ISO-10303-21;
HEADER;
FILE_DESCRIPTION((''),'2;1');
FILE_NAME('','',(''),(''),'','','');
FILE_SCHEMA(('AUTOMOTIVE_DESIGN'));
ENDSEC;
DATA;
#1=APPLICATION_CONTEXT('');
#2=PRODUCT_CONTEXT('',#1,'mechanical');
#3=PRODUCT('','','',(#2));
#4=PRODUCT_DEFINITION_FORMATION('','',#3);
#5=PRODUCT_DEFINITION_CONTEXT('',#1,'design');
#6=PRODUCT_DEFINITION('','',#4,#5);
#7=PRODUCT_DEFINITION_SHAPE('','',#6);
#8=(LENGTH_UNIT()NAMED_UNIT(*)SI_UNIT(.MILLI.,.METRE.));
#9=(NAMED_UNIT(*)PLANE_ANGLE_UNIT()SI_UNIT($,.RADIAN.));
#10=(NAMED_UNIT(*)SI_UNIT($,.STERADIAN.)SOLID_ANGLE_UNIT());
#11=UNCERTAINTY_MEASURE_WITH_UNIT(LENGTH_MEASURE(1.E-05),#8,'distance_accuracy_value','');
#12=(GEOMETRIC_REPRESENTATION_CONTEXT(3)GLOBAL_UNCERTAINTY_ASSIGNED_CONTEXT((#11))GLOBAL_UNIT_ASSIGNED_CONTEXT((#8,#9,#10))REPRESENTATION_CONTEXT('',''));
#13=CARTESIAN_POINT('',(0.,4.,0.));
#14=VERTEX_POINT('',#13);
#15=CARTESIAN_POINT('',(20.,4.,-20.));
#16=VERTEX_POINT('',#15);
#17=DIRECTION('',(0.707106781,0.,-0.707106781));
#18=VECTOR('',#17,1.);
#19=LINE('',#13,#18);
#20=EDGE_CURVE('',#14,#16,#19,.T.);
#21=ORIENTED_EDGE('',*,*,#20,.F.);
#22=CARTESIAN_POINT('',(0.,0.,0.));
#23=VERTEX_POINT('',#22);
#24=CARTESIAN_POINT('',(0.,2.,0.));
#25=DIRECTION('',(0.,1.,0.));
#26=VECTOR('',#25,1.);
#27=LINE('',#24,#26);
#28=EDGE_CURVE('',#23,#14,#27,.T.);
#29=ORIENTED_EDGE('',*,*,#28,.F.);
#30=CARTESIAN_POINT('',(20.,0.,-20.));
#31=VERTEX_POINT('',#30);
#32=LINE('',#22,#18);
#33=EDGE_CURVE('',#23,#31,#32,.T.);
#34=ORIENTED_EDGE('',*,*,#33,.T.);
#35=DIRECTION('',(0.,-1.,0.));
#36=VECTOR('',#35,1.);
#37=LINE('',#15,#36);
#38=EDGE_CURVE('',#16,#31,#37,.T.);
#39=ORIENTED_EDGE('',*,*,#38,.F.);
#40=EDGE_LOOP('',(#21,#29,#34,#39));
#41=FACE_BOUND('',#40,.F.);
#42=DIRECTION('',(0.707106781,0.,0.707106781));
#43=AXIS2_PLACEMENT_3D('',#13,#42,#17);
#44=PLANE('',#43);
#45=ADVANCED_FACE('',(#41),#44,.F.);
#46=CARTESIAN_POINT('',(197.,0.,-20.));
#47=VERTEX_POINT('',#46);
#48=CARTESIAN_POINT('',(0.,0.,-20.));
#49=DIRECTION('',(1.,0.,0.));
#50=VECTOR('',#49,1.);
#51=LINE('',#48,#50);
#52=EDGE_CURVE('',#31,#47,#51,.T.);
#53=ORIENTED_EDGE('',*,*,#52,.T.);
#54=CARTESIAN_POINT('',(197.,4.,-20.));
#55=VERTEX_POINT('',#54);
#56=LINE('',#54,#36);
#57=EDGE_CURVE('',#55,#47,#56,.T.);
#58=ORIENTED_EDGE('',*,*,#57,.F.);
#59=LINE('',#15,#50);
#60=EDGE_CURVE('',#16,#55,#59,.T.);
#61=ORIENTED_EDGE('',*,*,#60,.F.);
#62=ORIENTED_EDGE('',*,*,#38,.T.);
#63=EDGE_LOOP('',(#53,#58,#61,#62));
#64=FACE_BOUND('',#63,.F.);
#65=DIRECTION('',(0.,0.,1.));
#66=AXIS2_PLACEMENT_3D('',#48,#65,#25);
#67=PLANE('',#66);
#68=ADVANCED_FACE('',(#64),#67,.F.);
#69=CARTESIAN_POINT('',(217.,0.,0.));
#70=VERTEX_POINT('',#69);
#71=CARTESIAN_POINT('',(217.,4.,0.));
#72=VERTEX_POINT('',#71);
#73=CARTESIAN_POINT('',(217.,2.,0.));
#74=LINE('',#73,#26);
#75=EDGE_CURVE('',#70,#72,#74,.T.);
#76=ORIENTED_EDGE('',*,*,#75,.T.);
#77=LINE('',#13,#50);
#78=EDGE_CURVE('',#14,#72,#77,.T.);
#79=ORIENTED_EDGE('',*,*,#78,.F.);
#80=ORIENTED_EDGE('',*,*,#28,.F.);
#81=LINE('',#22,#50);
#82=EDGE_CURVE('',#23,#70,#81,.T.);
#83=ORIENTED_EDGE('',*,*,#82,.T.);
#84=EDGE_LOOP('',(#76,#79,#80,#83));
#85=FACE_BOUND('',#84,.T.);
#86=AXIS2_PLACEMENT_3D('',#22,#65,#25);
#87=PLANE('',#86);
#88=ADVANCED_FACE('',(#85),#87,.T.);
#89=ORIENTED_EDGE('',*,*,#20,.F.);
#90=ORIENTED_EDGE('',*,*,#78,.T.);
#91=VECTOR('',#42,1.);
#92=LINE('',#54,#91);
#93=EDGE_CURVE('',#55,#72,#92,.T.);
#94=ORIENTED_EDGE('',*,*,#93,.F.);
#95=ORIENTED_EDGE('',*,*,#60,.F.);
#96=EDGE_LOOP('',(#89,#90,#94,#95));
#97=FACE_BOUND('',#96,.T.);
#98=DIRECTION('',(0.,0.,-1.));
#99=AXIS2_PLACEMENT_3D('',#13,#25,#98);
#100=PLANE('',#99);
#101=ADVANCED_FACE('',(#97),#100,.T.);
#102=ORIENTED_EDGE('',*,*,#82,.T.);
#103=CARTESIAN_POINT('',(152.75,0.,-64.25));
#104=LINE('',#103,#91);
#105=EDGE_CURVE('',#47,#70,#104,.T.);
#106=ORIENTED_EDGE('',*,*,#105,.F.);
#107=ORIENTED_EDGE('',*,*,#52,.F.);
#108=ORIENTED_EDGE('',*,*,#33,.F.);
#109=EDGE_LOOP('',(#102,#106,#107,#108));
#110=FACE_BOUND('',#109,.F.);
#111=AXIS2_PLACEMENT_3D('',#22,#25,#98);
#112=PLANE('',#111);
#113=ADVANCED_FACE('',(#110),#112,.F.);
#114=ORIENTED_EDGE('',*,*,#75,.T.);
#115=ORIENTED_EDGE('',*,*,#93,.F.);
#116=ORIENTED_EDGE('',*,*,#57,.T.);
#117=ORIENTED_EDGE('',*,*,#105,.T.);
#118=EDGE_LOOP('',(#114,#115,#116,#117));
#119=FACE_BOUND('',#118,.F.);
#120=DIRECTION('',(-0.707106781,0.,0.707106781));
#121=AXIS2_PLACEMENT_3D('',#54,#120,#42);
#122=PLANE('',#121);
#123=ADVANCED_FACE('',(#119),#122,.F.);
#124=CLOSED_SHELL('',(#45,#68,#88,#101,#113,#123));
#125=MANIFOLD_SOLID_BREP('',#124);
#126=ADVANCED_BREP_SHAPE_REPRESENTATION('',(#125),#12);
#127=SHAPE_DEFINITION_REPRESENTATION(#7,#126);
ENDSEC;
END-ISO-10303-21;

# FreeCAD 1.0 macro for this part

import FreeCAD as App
import Part
import Sketcher
from FreeCAD import Vector
Q = App.Units.Quantity

doc = App.newDocument("Part")
body = doc.addObject("PartDesign::Body", "Body")

# Sketch on YZ plane
sketch1 = body.newObject("Sketcher::SketchObject", "Sketch")
sketch1.AttachmentSupport = (doc.getObject("YZ_Plane"), [""])
sketch1.MapMode = "FlatFace"
sketch1.addGeometry([
    Part.LineSegment(Vector(4, 0, 0), Vector(0, 0, 0)),
    Part.LineSegment(Vector(0, 0, 0), Vector(0, -20, 0)),
    Part.LineSegment(Vector(0, -20, 0), Vector(4, -20, 0)),
    Part.LineSegment(Vector(4, -20, 0), Vector(4, 0, 0)),
], False)
sketch1.addConstraint([
    Sketcher.Constraint("Coincident", 0, 2, 1, 1),
    Sketcher.Constraint("Coincident", 1, 2, 2, 1),
    Sketcher.Constraint("Coincident", 2, 2, 3, 1),
    Sketcher.Constraint("Coincident", 3, 2, 0, 1),
    Sketcher.Constraint("Horizontal", 0),
    Sketcher.Constraint("Vertical", 1),
    Sketcher.Constraint("Horizontal", 2),
    Sketcher.Constraint("Vertical", 3),
    Sketcher.Constraint("Coincident", 0, 2, -1, 1),
    Sketcher.Constraint("DistanceX", 0, 2, 0, 1, Q("4 mm")),
    Sketcher.Constraint("DistanceY", 1, 2, 1, 1, Q("20 mm")),
])
pad1 = body.newObject("PartDesign::Pad", "Pad")
pad1.Profile = sketch1
pad1.Length = 217

# Sketch on XZ plane
sketch2 = body.newObject("Sketcher::SketchObject", "Sketch001")
sketch2.AttachmentSupport = (doc.getObject("XZ_Plane"), [""])
sketch2.MapMode = "FlatFace"
sketch2.AttachmentOffset = App.Placement(Vector(0, 0, -4), App.Rotation())
sketch2.addGeometry([
    Part.LineSegment(Vector(-22.796, -42.796, 0), Vector(-22.796, 22.796, 0)),  # 0
    Part.LineSegment(Vector(-22.796, 22.796, 0), Vector(239.796, 22.796, 0)),  # 1
    Part.LineSegment(Vector(239.796, 22.796, 0), Vector(239.796, -42.796, 0)),  # 2
    Part.LineSegment(Vector(239.796, -42.796, 0), Vector(-22.796, -42.796, 0)),  # 3
    Part.LineSegment(Vector(217, 0, 0), Vector(0, 0, 0)),  # 4
    Part.LineSegment(Vector(0, 0, 0), Vector(20, -20, 0)),  # 5
    Part.LineSegment(Vector(20, -20, 0), Vector(197, -20, 0)),  # 6
    Part.LineSegment(Vector(197, -20, 0), Vector(217, 0, 0)),  # 7
], False)
sketch2.addConstraint([
    Sketcher.Constraint("Coincident", 0, 2, 1, 1),
    Sketcher.Constraint("Coincident", 1, 2, 2, 1),
    Sketcher.Constraint("Coincident", 2, 2, 3, 1),
    Sketcher.Constraint("Coincident", 3, 2, 0, 1),
    Sketcher.Constraint("Coincident", 4, 2, 5, 1),
    Sketcher.Constraint("Coincident", 5, 2, 6, 1),
    Sketcher.Constraint("Coincident", 6, 2, 7, 1),
    Sketcher.Constraint("Coincident", 7, 2, 4, 1),
    Sketcher.Constraint("Vertical", 0),
    Sketcher.Constraint("Horizontal", 1),
    Sketcher.Constraint("Vertical", 2),
    Sketcher.Constraint("Horizontal", 3),
    Sketcher.Constraint("Horizontal", 4),
    Sketcher.Constraint("Horizontal", 6),
    Sketcher.Constraint("Coincident", 4, 2, -1, 1),
    Sketcher.Constraint("Perpendicular", 5, 7),
    Sketcher.Constraint("Equal", 5, 7),
    Sketcher.Constraint("DistanceX", 4, 2, 4, 1, Q("217 mm")),
    Sketcher.Constraint("DistanceX", 6, 1, 6, 2, Q("177 mm")),
    Sketcher.Constraint("DistanceX", 1, 1, 1, 2, Q("262.592 mm")),
    Sketcher.Constraint("DistanceY", 0, 1, 0, 2, Q("65.592 mm")),
    Sketcher.Constraint("DistanceX", 0, 2, -1, 1, Q("22.796 mm")),
    Sketcher.Constraint("DistanceY", -1, 1, 0, 2, Q("22.796 mm")),
])
pocket1 = body.newObject("PartDesign::Pocket", "Pocket")
pocket1.Profile = sketch2
pocket1.Length = 10
pocket1.Reversed = True

doc.recompute()
